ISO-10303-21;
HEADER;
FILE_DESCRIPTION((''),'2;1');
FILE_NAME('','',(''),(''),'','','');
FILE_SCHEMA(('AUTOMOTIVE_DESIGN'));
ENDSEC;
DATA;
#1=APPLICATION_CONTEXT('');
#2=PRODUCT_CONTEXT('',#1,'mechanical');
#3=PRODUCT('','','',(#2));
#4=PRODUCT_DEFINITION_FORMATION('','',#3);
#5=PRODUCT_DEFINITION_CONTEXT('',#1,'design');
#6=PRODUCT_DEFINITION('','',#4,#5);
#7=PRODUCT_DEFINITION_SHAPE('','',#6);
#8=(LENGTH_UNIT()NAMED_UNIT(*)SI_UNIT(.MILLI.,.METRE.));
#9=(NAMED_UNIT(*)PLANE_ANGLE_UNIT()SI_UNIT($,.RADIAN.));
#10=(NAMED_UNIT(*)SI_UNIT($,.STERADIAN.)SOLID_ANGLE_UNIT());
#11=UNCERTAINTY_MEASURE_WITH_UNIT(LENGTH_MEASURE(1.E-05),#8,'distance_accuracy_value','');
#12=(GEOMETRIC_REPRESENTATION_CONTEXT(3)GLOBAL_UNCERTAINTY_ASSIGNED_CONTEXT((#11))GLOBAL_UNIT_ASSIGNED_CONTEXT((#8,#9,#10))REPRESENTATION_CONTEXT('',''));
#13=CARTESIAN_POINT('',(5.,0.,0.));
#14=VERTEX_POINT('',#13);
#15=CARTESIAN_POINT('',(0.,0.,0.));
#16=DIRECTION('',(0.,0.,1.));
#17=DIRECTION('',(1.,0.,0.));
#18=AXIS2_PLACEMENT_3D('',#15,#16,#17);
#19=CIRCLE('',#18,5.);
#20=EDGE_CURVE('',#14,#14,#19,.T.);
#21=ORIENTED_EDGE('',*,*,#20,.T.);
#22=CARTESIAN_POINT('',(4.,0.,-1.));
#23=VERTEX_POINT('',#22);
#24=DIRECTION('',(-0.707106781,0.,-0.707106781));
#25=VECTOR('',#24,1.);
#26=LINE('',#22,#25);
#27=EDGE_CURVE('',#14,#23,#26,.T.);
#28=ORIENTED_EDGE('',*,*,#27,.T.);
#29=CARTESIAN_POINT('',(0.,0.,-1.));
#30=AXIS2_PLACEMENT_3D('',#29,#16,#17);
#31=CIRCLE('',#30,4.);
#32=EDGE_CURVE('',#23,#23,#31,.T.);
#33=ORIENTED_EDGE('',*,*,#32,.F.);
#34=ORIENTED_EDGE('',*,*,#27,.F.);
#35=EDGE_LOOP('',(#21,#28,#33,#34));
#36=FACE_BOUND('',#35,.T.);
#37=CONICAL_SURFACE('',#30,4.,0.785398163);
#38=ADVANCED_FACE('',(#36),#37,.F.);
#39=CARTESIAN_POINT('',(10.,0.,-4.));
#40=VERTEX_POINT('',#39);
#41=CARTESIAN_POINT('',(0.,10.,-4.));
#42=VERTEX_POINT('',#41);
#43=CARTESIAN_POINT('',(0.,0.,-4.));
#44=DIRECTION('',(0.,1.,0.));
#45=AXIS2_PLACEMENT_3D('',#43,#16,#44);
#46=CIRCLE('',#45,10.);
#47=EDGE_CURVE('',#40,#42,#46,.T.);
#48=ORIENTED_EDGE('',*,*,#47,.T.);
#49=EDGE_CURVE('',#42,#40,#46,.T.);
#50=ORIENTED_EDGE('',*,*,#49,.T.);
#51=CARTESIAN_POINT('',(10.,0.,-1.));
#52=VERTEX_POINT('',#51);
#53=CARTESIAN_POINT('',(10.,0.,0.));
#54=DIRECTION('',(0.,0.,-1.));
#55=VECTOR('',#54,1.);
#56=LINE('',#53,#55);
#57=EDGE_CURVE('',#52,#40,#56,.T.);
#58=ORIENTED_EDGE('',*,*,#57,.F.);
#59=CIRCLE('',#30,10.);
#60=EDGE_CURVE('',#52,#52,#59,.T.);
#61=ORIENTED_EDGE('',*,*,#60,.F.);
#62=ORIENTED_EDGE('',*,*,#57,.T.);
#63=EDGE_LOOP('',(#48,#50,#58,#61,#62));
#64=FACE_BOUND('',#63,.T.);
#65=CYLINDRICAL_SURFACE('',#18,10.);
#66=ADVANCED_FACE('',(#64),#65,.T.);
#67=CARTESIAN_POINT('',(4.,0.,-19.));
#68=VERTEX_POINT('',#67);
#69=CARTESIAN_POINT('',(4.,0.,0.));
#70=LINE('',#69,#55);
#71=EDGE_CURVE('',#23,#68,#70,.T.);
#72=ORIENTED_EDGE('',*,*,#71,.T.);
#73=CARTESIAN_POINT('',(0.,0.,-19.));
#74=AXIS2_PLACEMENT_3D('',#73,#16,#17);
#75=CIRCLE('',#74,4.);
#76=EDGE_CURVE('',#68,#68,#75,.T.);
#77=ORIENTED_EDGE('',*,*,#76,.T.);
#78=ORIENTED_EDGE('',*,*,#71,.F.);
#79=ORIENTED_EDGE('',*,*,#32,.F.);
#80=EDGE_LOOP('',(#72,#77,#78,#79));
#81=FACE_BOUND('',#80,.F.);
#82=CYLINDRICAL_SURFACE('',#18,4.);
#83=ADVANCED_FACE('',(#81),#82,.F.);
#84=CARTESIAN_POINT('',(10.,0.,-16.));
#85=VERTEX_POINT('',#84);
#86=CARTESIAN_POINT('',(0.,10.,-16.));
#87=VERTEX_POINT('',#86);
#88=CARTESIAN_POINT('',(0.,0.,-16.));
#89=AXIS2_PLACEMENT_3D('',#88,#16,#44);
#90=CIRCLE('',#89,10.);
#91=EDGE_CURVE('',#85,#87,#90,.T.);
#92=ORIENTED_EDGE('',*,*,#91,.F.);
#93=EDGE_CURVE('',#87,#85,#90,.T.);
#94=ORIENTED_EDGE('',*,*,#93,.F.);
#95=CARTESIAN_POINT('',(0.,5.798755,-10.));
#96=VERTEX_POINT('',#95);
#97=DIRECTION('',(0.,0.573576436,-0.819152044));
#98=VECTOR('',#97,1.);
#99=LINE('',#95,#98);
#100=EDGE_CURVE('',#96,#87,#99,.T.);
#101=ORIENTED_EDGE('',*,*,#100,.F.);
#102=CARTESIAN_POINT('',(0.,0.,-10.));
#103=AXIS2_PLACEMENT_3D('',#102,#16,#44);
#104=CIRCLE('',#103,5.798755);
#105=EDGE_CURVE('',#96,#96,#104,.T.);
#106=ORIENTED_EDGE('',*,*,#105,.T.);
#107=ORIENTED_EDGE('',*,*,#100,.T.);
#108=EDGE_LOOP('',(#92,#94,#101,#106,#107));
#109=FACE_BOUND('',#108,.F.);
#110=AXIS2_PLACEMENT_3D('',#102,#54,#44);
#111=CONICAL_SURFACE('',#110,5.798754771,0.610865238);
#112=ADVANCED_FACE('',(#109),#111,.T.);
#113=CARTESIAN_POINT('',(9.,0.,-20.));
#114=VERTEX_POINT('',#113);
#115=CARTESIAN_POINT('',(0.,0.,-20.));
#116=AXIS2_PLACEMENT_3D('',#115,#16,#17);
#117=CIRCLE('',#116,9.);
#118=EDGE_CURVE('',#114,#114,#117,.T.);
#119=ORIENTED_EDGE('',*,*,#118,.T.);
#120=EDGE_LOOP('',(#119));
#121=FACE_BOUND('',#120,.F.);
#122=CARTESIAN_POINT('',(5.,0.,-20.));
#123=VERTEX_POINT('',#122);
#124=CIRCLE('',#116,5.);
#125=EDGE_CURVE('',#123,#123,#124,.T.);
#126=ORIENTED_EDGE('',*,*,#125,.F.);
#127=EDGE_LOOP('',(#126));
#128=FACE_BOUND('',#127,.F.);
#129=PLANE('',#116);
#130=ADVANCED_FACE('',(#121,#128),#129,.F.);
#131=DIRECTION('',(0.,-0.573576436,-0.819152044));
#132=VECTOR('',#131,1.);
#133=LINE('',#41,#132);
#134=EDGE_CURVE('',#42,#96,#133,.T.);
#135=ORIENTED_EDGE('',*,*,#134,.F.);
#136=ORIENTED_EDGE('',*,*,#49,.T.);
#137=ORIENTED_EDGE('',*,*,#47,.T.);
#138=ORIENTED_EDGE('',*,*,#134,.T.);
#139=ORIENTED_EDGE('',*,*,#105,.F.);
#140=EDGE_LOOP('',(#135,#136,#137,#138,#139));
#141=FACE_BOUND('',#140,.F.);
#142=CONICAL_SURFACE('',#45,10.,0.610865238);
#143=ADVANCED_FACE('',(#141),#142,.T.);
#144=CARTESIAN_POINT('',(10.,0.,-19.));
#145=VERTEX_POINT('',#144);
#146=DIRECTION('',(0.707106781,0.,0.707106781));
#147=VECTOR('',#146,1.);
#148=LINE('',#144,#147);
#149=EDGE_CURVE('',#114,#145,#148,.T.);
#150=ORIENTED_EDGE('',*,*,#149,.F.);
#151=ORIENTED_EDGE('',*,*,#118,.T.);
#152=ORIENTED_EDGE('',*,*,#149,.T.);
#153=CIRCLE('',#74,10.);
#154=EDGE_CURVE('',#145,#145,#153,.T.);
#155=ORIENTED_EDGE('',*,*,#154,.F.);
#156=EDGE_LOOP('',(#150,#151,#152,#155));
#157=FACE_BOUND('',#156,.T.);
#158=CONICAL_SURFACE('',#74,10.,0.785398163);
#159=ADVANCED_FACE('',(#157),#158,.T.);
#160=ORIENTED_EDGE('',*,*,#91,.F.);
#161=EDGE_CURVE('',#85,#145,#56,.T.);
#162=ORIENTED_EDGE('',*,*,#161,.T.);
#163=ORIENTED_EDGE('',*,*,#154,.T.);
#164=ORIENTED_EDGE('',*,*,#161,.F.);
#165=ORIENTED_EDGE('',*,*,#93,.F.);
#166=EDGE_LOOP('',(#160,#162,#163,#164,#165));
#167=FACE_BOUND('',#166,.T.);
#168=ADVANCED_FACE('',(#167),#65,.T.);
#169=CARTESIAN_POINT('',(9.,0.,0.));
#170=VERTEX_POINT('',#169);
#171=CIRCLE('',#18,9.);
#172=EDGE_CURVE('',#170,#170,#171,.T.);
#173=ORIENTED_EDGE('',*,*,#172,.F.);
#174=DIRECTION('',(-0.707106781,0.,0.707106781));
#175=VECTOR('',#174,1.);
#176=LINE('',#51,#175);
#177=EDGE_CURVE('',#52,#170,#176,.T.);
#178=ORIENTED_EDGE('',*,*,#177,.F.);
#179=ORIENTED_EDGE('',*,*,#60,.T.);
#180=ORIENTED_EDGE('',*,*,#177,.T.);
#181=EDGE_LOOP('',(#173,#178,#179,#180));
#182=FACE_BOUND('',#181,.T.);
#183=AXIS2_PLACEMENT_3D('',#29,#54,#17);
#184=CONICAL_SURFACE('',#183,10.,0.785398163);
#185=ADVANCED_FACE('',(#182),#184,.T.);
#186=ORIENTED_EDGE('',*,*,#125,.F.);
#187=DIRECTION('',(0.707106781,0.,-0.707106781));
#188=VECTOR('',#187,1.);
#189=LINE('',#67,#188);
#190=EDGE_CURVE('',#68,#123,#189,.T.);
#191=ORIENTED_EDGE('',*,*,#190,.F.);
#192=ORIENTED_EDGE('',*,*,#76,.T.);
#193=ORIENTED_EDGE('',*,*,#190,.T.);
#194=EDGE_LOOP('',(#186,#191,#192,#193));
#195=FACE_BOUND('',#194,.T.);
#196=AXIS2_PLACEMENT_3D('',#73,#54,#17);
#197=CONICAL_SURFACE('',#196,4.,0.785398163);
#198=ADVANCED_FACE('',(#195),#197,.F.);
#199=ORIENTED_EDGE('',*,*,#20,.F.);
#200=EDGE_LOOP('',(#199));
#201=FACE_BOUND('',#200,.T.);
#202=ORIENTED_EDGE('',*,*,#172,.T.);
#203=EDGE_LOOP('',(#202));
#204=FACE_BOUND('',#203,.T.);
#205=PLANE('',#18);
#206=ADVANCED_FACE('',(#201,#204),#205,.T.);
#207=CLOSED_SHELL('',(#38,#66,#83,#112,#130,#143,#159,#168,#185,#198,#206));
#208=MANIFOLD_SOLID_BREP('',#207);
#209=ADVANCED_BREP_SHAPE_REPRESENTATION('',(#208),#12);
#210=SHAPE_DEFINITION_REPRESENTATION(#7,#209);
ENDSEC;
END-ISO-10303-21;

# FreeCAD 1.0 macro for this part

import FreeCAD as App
import Part
import Sketcher
from FreeCAD import Vector
Q = App.Units.Quantity


def edges_at(feature, points):
    """Names of the edges that pass closest to the given points."""
    edges = feature.Shape.Edges
    near = lambda p: min(range(len(edges)), key=lambda i: edges[i].distToShape(Part.Vertex(*p))[0])
    return sorted({f"Edge{near(p) + 1}" for p in points})


def add_polygon(sketch, points):
    """Adds a closed chain of lines whose ends are joined by coincident constraints."""
    first, n = sketch.GeometryCount, len(points)
    for a, b in zip(points, points[1:] + points[:1]):
        sketch.addGeometry(Part.LineSegment(App.Vector(*a, 0), App.Vector(*b, 0)), False)
    for i in range(n):
        sketch.addConstraint(Sketcher.Constraint("Coincident", first + i, 2, first + (i + 1) % n, 1))

doc = App.newDocument("Part")
body = doc.addObject("PartDesign::Body", "Body")

# Sketch on XY plane
sketch1 = body.newObject("Sketcher::SketchObject", "Sketch")
sketch1.AttachmentSupport = (doc.getObject("XY_Plane"), [""])
sketch1.MapMode = "FlatFace"
sketch1.addGeometry(Part.Circle(Vector(0, 0, 0), Vector(0, 0, 1), 10), False)
sketch1.addConstraint([
    Sketcher.Constraint("Coincident", 0, 3, -1, 1),
    Sketcher.Constraint("Diameter", 0, 20.0),
])
pad1 = body.newObject("PartDesign::Pad", "Pad")
pad1.Profile = sketch1
pad1.Length = 20
pad1.Reversed = True

# Sketch on YZ plane
sketch2 = body.newObject("Sketcher::SketchObject", "Sketch001")
sketch2.AttachmentSupport = (doc.getObject("YZ_Plane"), [""])
sketch2.MapMode = "FlatFace"
add_polygon(sketch2, [(10, -16), (10, -4), (6, -10)])  # lines 0-2
sketch2.addConstraint([
    Sketcher.Constraint("Vertical", 0),
    Sketcher.Constraint("Equal", 1, 2),
    Sketcher.Constraint("DistanceY", 0, 1, 0, 2, 12.0),
    Sketcher.Constraint("Angle", 1, Q("-125 deg")),
    Sketcher.Constraint("DistanceX", -1, 1, 0, 2, 10.0),
    Sketcher.Constraint("DistanceY", 0, 2, -1, 1, 4.0),
])
groove = body.newObject("PartDesign::Groove", "Groove")
groove.Profile = sketch2
groove.ReferenceAxis = (sketch2, ["V_Axis"])
groove.Angle = 360

# Sketch on XY plane
sketch3 = body.newObject("Sketcher::SketchObject", "Sketch002")
sketch3.AttachmentSupport = (doc.getObject("XY_Plane"), [""])
sketch3.MapMode = "FlatFace"
sketch3.addGeometry(Part.Circle(Vector(0, 0, 0), Vector(0, 0, 1), 4), False)
sketch3.addConstraint([
    Sketcher.Constraint("Coincident", 0, 3, -1, 1),
    Sketcher.Constraint("Diameter", 0, 8.0),
])
pocket1 = body.newObject("PartDesign::Pocket", "Pocket")
pocket1.Profile = sketch3
pocket1.Length = 25
doc.recompute()

chamfer = body.newObject("PartDesign::Chamfer", "Chamfer")
chamfer.Base = (pocket1, edges_at(pocket1, [
    (-4, 0, -20),
    (-10, 0, -20),
    (-10, 0, 0),
    (-4, 0, 0),
]))
chamfer.Size = 1

doc.recompute()
